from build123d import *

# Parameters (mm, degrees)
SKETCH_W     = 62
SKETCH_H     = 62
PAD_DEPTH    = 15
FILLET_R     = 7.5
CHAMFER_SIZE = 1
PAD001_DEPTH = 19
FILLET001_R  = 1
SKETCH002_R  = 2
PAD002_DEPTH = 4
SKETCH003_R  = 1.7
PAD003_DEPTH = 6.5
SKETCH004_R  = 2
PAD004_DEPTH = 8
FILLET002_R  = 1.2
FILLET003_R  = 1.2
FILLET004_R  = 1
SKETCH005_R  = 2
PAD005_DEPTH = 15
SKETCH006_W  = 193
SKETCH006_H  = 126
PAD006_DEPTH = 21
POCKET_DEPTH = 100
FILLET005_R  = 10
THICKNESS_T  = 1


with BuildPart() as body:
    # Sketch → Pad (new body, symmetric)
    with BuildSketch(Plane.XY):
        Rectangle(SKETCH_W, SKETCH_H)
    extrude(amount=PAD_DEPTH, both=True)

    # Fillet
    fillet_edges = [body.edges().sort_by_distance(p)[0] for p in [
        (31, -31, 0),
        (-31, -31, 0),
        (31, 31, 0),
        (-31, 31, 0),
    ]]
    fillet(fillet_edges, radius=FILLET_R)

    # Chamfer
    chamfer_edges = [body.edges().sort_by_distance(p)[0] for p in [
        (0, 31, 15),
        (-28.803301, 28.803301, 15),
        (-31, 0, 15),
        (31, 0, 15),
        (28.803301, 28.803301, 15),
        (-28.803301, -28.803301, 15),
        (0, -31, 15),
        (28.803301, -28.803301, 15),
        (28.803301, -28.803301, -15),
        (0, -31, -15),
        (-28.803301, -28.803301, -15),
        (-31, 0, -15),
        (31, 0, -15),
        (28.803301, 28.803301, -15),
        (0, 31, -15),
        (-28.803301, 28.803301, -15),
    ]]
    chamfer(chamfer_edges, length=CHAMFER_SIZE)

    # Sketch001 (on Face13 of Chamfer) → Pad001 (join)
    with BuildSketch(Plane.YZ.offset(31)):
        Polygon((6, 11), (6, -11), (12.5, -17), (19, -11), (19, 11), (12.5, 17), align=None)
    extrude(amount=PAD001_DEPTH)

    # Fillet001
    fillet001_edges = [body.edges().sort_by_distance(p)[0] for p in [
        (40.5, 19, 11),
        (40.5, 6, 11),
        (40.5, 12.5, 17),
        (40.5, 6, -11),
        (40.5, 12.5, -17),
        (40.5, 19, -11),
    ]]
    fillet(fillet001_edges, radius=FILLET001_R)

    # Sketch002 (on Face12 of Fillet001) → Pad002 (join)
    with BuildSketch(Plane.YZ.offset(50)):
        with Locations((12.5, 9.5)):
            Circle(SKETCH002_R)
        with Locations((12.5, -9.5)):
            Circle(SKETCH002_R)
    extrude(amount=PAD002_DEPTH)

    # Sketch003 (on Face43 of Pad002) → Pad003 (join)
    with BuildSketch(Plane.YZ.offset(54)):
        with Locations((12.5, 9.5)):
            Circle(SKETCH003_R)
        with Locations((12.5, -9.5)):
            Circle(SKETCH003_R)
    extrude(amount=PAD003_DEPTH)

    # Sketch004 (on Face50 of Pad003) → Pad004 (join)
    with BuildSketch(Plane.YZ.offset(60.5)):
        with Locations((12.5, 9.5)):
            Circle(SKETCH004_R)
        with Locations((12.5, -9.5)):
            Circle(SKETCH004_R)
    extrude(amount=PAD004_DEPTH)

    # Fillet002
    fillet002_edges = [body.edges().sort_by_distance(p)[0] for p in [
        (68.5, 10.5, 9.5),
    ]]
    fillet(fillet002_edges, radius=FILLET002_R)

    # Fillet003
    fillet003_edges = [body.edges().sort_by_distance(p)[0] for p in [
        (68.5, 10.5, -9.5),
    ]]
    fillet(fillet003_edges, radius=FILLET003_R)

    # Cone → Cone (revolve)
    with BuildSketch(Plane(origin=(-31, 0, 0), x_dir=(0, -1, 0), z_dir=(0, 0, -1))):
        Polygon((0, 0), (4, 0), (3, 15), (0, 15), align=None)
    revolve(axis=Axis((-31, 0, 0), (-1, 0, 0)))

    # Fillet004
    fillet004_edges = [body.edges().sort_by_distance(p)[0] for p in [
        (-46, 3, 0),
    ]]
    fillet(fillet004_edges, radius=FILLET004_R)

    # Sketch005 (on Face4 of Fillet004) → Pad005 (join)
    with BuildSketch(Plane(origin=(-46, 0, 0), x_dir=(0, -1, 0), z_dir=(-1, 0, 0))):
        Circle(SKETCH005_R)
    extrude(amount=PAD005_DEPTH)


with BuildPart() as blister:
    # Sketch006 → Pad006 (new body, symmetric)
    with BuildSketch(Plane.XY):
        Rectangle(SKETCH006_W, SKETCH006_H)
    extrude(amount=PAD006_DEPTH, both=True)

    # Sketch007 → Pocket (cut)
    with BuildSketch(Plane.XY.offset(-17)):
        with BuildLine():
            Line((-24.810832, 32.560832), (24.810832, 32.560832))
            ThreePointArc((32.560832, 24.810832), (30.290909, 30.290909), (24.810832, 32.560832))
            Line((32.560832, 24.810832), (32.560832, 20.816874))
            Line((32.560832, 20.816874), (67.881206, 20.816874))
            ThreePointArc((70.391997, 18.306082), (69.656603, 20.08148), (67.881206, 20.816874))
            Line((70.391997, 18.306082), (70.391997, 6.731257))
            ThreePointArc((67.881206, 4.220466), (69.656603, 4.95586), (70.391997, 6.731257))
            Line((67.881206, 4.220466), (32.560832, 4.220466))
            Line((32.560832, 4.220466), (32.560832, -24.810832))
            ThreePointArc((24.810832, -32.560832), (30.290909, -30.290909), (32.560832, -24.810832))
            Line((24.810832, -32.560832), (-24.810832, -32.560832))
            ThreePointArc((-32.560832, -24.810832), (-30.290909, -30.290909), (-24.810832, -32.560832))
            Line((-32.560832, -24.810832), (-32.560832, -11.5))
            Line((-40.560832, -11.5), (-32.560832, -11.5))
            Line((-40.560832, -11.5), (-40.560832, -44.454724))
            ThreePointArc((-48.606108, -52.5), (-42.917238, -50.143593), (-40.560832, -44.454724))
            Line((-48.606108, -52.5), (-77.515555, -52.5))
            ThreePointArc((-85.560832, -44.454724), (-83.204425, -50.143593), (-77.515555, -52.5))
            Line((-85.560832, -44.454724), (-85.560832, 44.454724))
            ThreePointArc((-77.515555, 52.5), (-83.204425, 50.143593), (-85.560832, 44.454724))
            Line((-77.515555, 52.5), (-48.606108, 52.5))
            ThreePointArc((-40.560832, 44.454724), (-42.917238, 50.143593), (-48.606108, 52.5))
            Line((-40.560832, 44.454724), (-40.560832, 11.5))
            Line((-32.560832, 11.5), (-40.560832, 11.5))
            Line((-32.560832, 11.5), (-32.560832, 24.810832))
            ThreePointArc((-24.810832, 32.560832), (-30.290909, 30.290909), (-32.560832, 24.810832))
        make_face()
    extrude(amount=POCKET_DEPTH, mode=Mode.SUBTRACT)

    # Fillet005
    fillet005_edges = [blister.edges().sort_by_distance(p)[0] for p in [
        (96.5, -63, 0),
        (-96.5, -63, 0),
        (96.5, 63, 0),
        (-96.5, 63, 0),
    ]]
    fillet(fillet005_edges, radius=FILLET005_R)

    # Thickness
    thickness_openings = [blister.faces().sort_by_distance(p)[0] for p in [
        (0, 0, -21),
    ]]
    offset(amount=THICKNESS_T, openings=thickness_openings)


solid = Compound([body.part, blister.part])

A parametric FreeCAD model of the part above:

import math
import FreeCAD as App
import Part
import Sketcher
from FreeCAD import Vector
Q = App.Units.Quantity


def edges_at(feature, points):
    """Names of the edges that pass closest to the given points."""
    edges = feature.Shape.Edges
    near = lambda p: min(range(len(edges)), key=lambda i: edges[i].distToShape(Part.Vertex(*p))[0])
    return sorted({f"Edge{near(p) + 1}" for p in points})


def faces_at(feature, points):
    """Names of the faces that lie closest to the given points."""
    faces = feature.Shape.Faces
    near = lambda p: min(range(len(faces)), key=lambda i: faces[i].distToShape(Part.Vertex(*p))[0])
    return sorted({f"Face{near(p) + 1}" for p in points})

doc = App.newDocument("Part")
params = doc.addObject("Spreadsheet::Sheet", "Params")
for row, (alias, value) in enumerate([
    ("sketch1_width", "62 mm"),
    ("pad1_length", "30 mm"),
    ("fillet_radius", "7.5 mm"),
    ("chamfer_size", "1 mm"),
    ("sketch2_height", "22 mm"),
    ("pad2_length", "19 mm"),
    ("fillet2_radius", "1 mm"),
    ("sketch3_diameter", "4 mm"),
    ("pad3_length", "4 mm"),
    ("sketch4_diameter", "3.4 mm"),
    ("pad4_length", "6.5 mm"),
    ("sketch5_diameter", "4 mm"),
    ("pad5_length", "8 mm"),
    ("fillet3_radius", "1.2 mm"),
    ("fillet4_radius", "1.2 mm"),
    ("sketch6_width", "15 mm"),
    ("sketch6_height", "4 mm"),
    ("sketch6_height2", "3 mm"),
    ("revolution_angle", "360 deg"),
    ("fillet5_radius", "1 mm"),
    ("sketch7_diameter", "4 mm"),
    ("pad6_length", "15 mm"),
    ("sketch8_width", "193 mm"),
    ("sketch8_height", "126 mm"),
    ("pad7_length", "42 mm"),
    ("sketch9_width", "8 mm"),
    ("sketch9_radius", "7.750002 mm"),
    ("pocket1_length", "100 mm"),
    ("fillet6_radius", "10 mm"),
    ("thickness_wall", "1 mm"),
], start=1):
    params.set(f"A{row}", alias)
    params.set(f"B{row}", "=" + value)
    params.setAlias(f"B{row}", alias)

body = doc.addObject("PartDesign::Body", "Body")

sketch1 = body.newObject("Sketcher::SketchObject", "Sketch")
sketch1.AttachmentSupport = (doc.getObject("XY_Plane"), [""])
sketch1.MapMode = "FlatFace"
sketch1.addGeometry([
    Part.LineSegment(Vector(-31, 31, 0), Vector(-31, -31, 0)),
    Part.LineSegment(Vector(-31, -31, 0), Vector(31, -31, 0)),
    Part.LineSegment(Vector(31, -31, 0), Vector(31, 31, 0)),
    Part.LineSegment(Vector(31, 31, 0), Vector(-31, 31, 0)),
], False)
sketch1.addConstraint([
    Sketcher.Constraint("Coincident", 0, 2, 1, 1),
    Sketcher.Constraint("Coincident", 1, 2, 2, 1),
    Sketcher.Constraint("Coincident", 2, 2, 3, 1),
    Sketcher.Constraint("Coincident", 3, 2, 0, 1),
    Sketcher.Constraint("Vertical", 0),
    Sketcher.Constraint("Horizontal", 1),
    Sketcher.Constraint("Vertical", 2),
    Sketcher.Constraint("Horizontal", 3),
    Sketcher.Constraint("Symmetric", 0, 2, 2, 2, -1, 1),
    Sketcher.Constraint("Equal", 3, 0),
    Sketcher.Constraint("DistanceX", 1, 1, 1, 2, Q("62 mm")),
])
sketch1.setExpression("Constraints[10]", "Params.sketch1_width")
pad1 = body.newObject("PartDesign::Pad", "Pad")
pad1.Profile = sketch1
pad1.setExpression("Length", "Params.pad1_length")
pad1.Midplane = True
doc.recompute()

fillet = body.newObject("PartDesign::Fillet", "Fillet")
fillet.Base = (pad1, edges_at(pad1, [
    (31, -31, 0),
    (-31, -31, 0),
    (31, 31, 0),
    (-31, 31, 0),
]))
fillet.setExpression("Radius", "Params.fillet_radius")
doc.recompute()

chamfer = body.newObject("PartDesign::Chamfer", "Chamfer")
chamfer.Base = (fillet, edges_at(fillet, [
    (0, 31, 15),
    (-28.803, 28.803, 15),
    (-31, 0, 15),
    (31, 0, 15),
    (28.803, 28.803, 15),
    (-28.803, -28.803, 15),
    (0, -31, 15),
    (28.803, -28.803, 15),
    (28.803, -28.803, -15),
    (0, -31, -15),
    (-28.803, -28.803, -15),
    (-31, 0, -15),
    (31, 0, -15),
    (28.803, 28.803, -15),
    (0, 31, -15),
    (-28.803, 28.803, -15),
]))
chamfer.setExpression("Size", "Params.chamfer_size")

sketch2 = body.newObject("Sketcher::SketchObject", "Sketch001")
sketch2.AttachmentSupport = (doc.getObject("YZ_Plane"), [""])
sketch2.MapMode = "FlatFace"
sketch2.AttachmentOffset = App.Placement(Vector(0, 0, 31), App.Rotation())
sketch2.addGeometry([
    Part.LineSegment(Vector(6, 11, 0), Vector(6, -11, 0)),
    Part.LineSegment(Vector(6, -11, 0), Vector(12, -17, 0)),
    Part.LineSegment(Vector(12, -17, 0), Vector(19, -11, 0)),
    Part.LineSegment(Vector(19, -11, 0), Vector(19, 11, 0)),
    Part.LineSegment(Vector(19, 11, 0), Vector(12, 17, 0)),
    Part.LineSegment(Vector(12, 17, 0), Vector(6, 11, 0)),
], False)
sketch2.addConstraint([
    Sketcher.Constraint("Coincident", 0, 2, 1, 1),
    Sketcher.Constraint("Coincident", 1, 2, 2, 1),
    Sketcher.Constraint("Coincident", 2, 2, 3, 1),
    Sketcher.Constraint("Coincident", 3, 2, 4, 1),
    Sketcher.Constraint("Coincident", 4, 2, 5, 1),
    Sketcher.Constraint("Coincident", 5, 2, 0, 1),
    Sketcher.Constraint("Vertical", 0),
    Sketcher.Constraint("Vertical", 3),
    Sketcher.Constraint("Symmetric", 1, 2, 4, 2, -1),
    Sketcher.Constraint("Parallel", 1, 4),
    Sketcher.Constraint("Parallel", 2, 5),
    Sketcher.Constraint("Horizontal", 0, 2, 2, 2),
    Sketcher.Constraint("Horizontal", 3, 2, 5, 2),
    Sketcher.Constraint("DistanceY", 0, 2, 0, 1, Q("22 mm")),
    Sketcher.Constraint("DistanceX", -1, 1, 0, 2, Q("6 mm")),
    Sketcher.Constraint("DistanceY", 1, 2, -1, 1, Q("17 mm")),
    Sketcher.Constraint("DistanceX", -1, 1, 2, 2, Q("19 mm")),
])
sketch2.setExpression("Constraints[13]", "Params.sketch2_height")
pad2 = body.newObject("PartDesign::Pad", "Pad001")
pad2.Profile = sketch2
pad2.setExpression("Length", "Params.pad2_length")
doc.recompute()

fillet2 = body.newObject("PartDesign::Fillet", "Fillet001")
fillet2.Base = (pad2, edges_at(pad2, [
    (40.5, 19, 11),
    (40.5, 6, 11),
    (40.5, 12.5, 17),
    (40.5, 6, -11),
    (40.5, 12.5, -17),
    (40.5, 19, -11),
]))
fillet2.setExpression("Radius", "Params.fillet2_radius")

sketch3 = body.newObject("Sketcher::SketchObject", "Sketch002")
sketch3.AttachmentSupport = (doc.getObject("YZ_Plane"), [""])
sketch3.MapMode = "FlatFace"
sketch3.AttachmentOffset = App.Placement(Vector(0, 0, 50), App.Rotation())
sketch3.addGeometry([
    Part.Circle(Vector(12.5, 9.5, 0), Vector(0, 0, 1), 2),
    Part.Circle(Vector(12.5, -9.5, 0), Vector(0, 0, 1), 2),
], False)
sketch3.addConstraint([
    Sketcher.Constraint("Equal", 0, 1),
    Sketcher.Constraint("Symmetric", 0, 3, 1, 3, -1),
    Sketcher.Constraint("Diameter", 0, Q("4 mm")),
    Sketcher.Constraint("DistanceY", 1, 3, 0, 3, Q("19 mm")),
    Sketcher.Constraint("DistanceX", -1, 1, 0, 3, Q("12.5 mm")),
])
sketch3.setExpression("Constraints[2]", "Params.sketch3_diameter")
pad3 = body.newObject("PartDesign::Pad", "Pad002")
pad3.Profile = sketch3
pad3.setExpression("Length", "Params.pad3_length")

sketch4 = body.newObject("Sketcher::SketchObject", "Sketch003")
sketch4.AttachmentSupport = (doc.getObject("YZ_Plane"), [""])
sketch4.MapMode = "FlatFace"
sketch4.AttachmentOffset = App.Placement(Vector(0, 0, 54), App.Rotation())
sketch4.addGeometry([
    Part.Circle(Vector(12.5, 9.5, 0), Vector(0, 0, 1), 1.7),
    Part.Circle(Vector(12.5, -9.5, 0), Vector(0, 0, 1), 1.7),
], False)
sketch4.addConstraint([
    Sketcher.Constraint("Equal", 0, 1),
    Sketcher.Constraint("Symmetric", 0, 3, 1, 3, -1),
    Sketcher.Constraint("Diameter", 0, Q("3.4 mm")),
    Sketcher.Constraint("DistanceY", 1, 3, 0, 3, Q("19 mm")),
    Sketcher.Constraint("DistanceX", -1, 1, 0, 3, Q("12.5 mm")),
])
sketch4.setExpression("Constraints[2]", "Params.sketch4_diameter")
pad4 = body.newObject("PartDesign::Pad", "Pad003")
pad4.Profile = sketch4
pad4.setExpression("Length", "Params.pad4_length")

sketch5 = body.newObject("Sketcher::SketchObject", "Sketch004")
sketch5.AttachmentSupport = (doc.getObject("YZ_Plane"), [""])
sketch5.MapMode = "FlatFace"
sketch5.AttachmentOffset = App.Placement(Vector(0, 0, 60.5), App.Rotation())
sketch5.addGeometry([
    Part.Circle(Vector(12.5, 9.5, 0), Vector(0, 0, 1), 2),
    Part.Circle(Vector(12.5, -9.5, 0), Vector(0, 0, 1), 2),
], False)
sketch5.addConstraint([
    Sketcher.Constraint("Equal", 0, 1),
    Sketcher.Constraint("Symmetric", 0, 3, 1, 3, -1),
    Sketcher.Constraint("Diameter", 0, Q("4 mm")),
    Sketcher.Constraint("DistanceY", 1, 3, 0, 3, Q("19 mm")),
    Sketcher.Constraint("DistanceX", -1, 1, 0, 3, Q("12.5 mm")),
])
sketch5.setExpression("Constraints[2]", "Params.sketch5_diameter")
pad5 = body.newObject("PartDesign::Pad", "Pad004")
pad5.Profile = sketch5
pad5.setExpression("Length", "Params.pad5_length")
doc.recompute()

fillet3 = body.newObject("PartDesign::Fillet", "Fillet002")
fillet3.Base = (pad5, edges_at(pad5, [(68.5, 10.5, 9.5)]))
fillet3.setExpression("Radius", "Params.fillet3_radius")
doc.recompute()

fillet4 = body.newObject("PartDesign::Fillet", "Fillet003")
fillet4.Base = (fillet3, edges_at(fillet3, [(68.5, 10.5, -9.5)]))
fillet4.setExpression("Radius", "Params.fillet4_radius")

sketch6 = body.newObject("Sketcher::SketchObject", "Sketch005")
sketch6.AttachmentSupport = (doc.getObject("XY_Plane"), [""])
sketch6.MapMode = "FlatFace"
sketch6.addGeometry([
    Part.LineSegment(Vector(-31, 0, 0), Vector(-31, -4, 0)),
    Part.LineSegment(Vector(-31, -4, 0), Vector(-46, -3, 0)),
    Part.LineSegment(Vector(-46, -3, 0), Vector(-46, 0, 0)),
    Part.LineSegment(Vector(-46, 0, 0), Vector(-31, 0, 0)),
], False)
sketch6.addConstraint([
    Sketcher.Constraint("Coincident", 0, 2, 1, 1),
    Sketcher.Constraint("Coincident", 1, 2, 2, 1),
    Sketcher.Constraint("Coincident", 2, 2, 3, 1),
    Sketcher.Constraint("Coincident", 3, 2, 0, 1),
    Sketcher.Constraint("Vertical", 0),
    Sketcher.Constraint("Vertical", 2),
    Sketcher.Constraint("Horizontal", 3),
    Sketcher.Constraint("PointOnObject", 2, 2, -1),
    Sketcher.Constraint("DistanceX", 3, 1, 3, 2, Q("15 mm")),
    Sketcher.Constraint("DistanceY", 0, 2, 0, 1, Q("4 mm")),
    Sketcher.Constraint("DistanceY", 2, 1, 2, 2, Q("3 mm")),
    Sketcher.Constraint("DistanceX", 0, 2, -1, 1, Q("31 mm")),
])
sketch6.setExpression("Constraints[8]", "Params.sketch6_width")
sketch6.setExpression("Constraints[9]", "Params.sketch6_height")
sketch6.setExpression("Constraints[10]", "Params.sketch6_height2")
revolution = body.newObject("PartDesign::Revolution", "Revolution")
revolution.Profile = sketch6
revolution.ReferenceAxis = (sketch6, ["H_Axis"])
revolution.setExpression("Angle", "Params.revolution_angle")
doc.recompute()

fillet5 = body.newObject("PartDesign::Fillet", "Fillet004")
fillet5.Base = (revolution, edges_at(revolution, [(-46, 3, 0)]))
fillet5.setExpression("Radius", "Params.fillet5_radius")

sketch7 = body.newObject("Sketcher::SketchObject", "Sketch006")
sketch7.AttachmentSupport = (doc.getObject("YZ_Plane"), [""])
sketch7.MapMode = "FlatFace"
sketch7.AttachmentOffset = App.Placement(Vector(0, 0, -46), App.Rotation())
sketch7.addGeometry(Part.Circle(Vector(0, 0, 0), Vector(0, 0, 1), 2), False)
sketch7.addConstraint([
    Sketcher.Constraint("Coincident", 0, 3, -1, 1),
    Sketcher.Constraint("Diameter", 0, Q("4 mm")),
])
sketch7.setExpression("Constraints[1]", "Params.sketch7_diameter")
pad6 = body.newObject("PartDesign::Pad", "Pad005")
pad6.Profile = sketch7
pad6.setExpression("Length", "Params.pad6_length")
pad6.Reversed = True
body2 = doc.addObject("PartDesign::Body", "Body001")

sketch8 = body2.newObject("Sketcher::SketchObject", "Sketch007")
sketch8.AttachmentSupport = (doc.getObject("XY_Plane001"), [""])
sketch8.MapMode = "FlatFace"
sketch8.addGeometry([
    Part.LineSegment(Vector(-96, 63, 0), Vector(-96, -63, 0)),
    Part.LineSegment(Vector(-96, -63, 0), Vector(96, -63, 0)),
    Part.LineSegment(Vector(96, -63, 0), Vector(96, 63, 0)),
    Part.LineSegment(Vector(96, 63, 0), Vector(-96, 63, 0)),
], False)
sketch8.addConstraint([
    Sketcher.Constraint("Coincident", 0, 2, 1, 1),
    Sketcher.Constraint("Coincident", 1, 2, 2, 1),
    Sketcher.Constraint("Coincident", 2, 2, 3, 1),
    Sketcher.Constraint("Coincident", 3, 2, 0, 1),
    Sketcher.Constraint("Vertical", 0),
    Sketcher.Constraint("Horizontal", 1),
    Sketcher.Constraint("Vertical", 2),
    Sketcher.Constraint("Horizontal", 3),
    Sketcher.Constraint("Symmetric", 0, 2, 2, 2, -1, 1),
    Sketcher.Constraint("DistanceX", 1, 1, 1, 2, Q("193 mm")),
    Sketcher.Constraint("DistanceY", 0, 2, 0, 1, Q("126 mm")),
])
sketch8.setExpression("Constraints[9]", "Params.sketch8_width")
sketch8.setExpression("Constraints[10]", "Params.sketch8_height")
pad7 = body2.newObject("PartDesign::Pad", "Pad006")
pad7.Profile = sketch8
pad7.setExpression("Length", "Params.pad7_length")
pad7.Midplane = True

sketch9 = body2.newObject("Sketcher::SketchObject", "Sketch008")
sketch9.AttachmentSupport = (doc.getObject("XY_Plane001"), [""])
sketch9.MapMode = "FlatFace"
sketch9.AttachmentOffset = App.Placement(Vector(0, 0, -17), App.Rotation())
sketch9.addGeometry([
    Part.LineSegment(Vector(24.8, 32.6, 0), Vector(-24.8, 32.6, 0)),
    Part.ArcOfCircle(Part.Circle(Vector(-24.8, 24.8, 0), Vector(0, 0, 1), 7.8), math.radians(90), math.radians(180)),
    Part.LineSegment(Vector(-32.6, 24.8, 0), Vector(-32.6, 11.5, 0)),
    Part.LineSegment(Vector(-32.6, 11.5, 0), Vector(-40.6, 11.5, 0)),
    Part.LineSegment(Vector(-40.6, 11.5, 0), Vector(-40.6, 44.5, 0)),
    Part.ArcOfCircle(Part.Circle(Vector(-48.6, 44.5, 0), Vector(0, 0, 1), 8), math.radians(0), math.radians(90)),
    Part.LineSegment(Vector(-48.6, 52.5, 0), Vector(-77.5, 52.5, 0)),
    Part.ArcOfCircle(Part.Circle(Vector(-77.5, 44.5, 0), Vector(0, 0, 1), 8), math.radians(90), math.radians(180)),
    Part.LineSegment(Vector(-85.6, 44.5, 0), Vector(-85.6, -44.5, 0)),
    Part.ArcOfCircle(Part.Circle(Vector(-77.5, -44.5, 0), Vector(0, 0, 1), 8), math.radians(-180), math.radians(-90)),
    Part.LineSegment(Vector(-77.5, -52.5, 0), Vector(-48.6, -52.5, 0)),
    Part.ArcOfCircle(Part.Circle(Vector(-48.6, -44.5, 0), Vector(0, 0, 1), 8), math.radians(-90), math.radians(0)),
    Part.LineSegment(Vector(-40.6, -44.5, 0), Vector(-40.6, -11.5, 0)),
    Part.LineSegment(Vector(-40.6, -11.5, 0), Vector(-32.6, -11.5, 0)),
    Part.LineSegment(Vector(-32.6, -11.5, 0), Vector(-32.6, -24.8, 0)),
    Part.ArcOfCircle(Part.Circle(Vector(-24.8, -24.8, 0), Vector(0, 0, 1), 7.8), math.radians(-180), math.radians(-90)),
    Part.LineSegment(Vector(-24.8, -32.6, 0), Vector(24.8, -32.6, 0)),
    Part.ArcOfCircle(Part.Circle(Vector(24.8, -24.8, 0), Vector(0, 0, 1), 7.8), math.radians(-90), math.radians(0)),
    Part.LineSegment(Vector(32.6, -24.8, 0), Vector(32.6, 4.2, 0)),
    Part.LineSegment(Vector(32.6, 4.2, 0), Vector(67.9, 4.2, 0)),
    Part.ArcOfCircle(Part.Circle(Vector(67.9, 6.7, 0), Vector(0, 0, 1), 2.5), math.radians(-90), math.radians(0)),
    Part.LineSegment(Vector(70.4, 6.7, 0), Vector(70.4, 18.3, 0)),
    Part.ArcOfCircle(Part.Circle(Vector(67.9, 18.3, 0), Vector(0, 0, 1), 2.5), math.radians(0), math.radians(90)),
    Part.LineSegment(Vector(67.9, 20.8, 0), Vector(32.6, 20.8, 0)),
    Part.LineSegment(Vector(32.6, 20.8, 0), Vector(32.6, 24.8, 0)),
    Part.ArcOfCircle(Part.Circle(Vector(24.8, 24.8, 0), Vector(0, 0, 1), 7.8), math.radians(0), math.radians(90)),
], False)
sketch9.addConstraint([
    Sketcher.Constraint("Tangent", 0, 2, 1, 1),
    Sketcher.Constraint("Tangent", 1, 2, 2, 1),
    Sketcher.Constraint("Coincident", 2, 2, 3, 1),
    Sketcher.Constraint("Coincident", 3, 2, 4, 1),
    Sketcher.Constraint("Tangent", 4, 2, 5, 1),
    Sketcher.Constraint("Tangent", 5, 2, 6, 1),
    Sketcher.Constraint("Tangent", 6, 2, 7, 1),
    Sketcher.Constraint("Tangent", 7, 2, 8, 1),
    Sketcher.Constraint("Tangent", 8, 2, 9, 1),
    Sketcher.Constraint("Tangent", 9, 2, 10, 1),
    Sketcher.Constraint("Tangent", 10, 2, 11, 1),
    Sketcher.Constraint("Tangent", 11, 2, 12, 1),
    Sketcher.Constraint("Coincident", 12, 2, 13, 1),
    Sketcher.Constraint("Coincident", 13, 2, 14, 1),
    Sketcher.Constraint("Tangent", 14, 2, 15, 1),
    Sketcher.Constraint("Tangent", 15, 2, 16, 1),
    Sketcher.Constraint("Tangent", 16, 2, 17, 1),
    Sketcher.Constraint("Tangent", 17, 2, 18, 1),
    Sketcher.Constraint("Coincident", 18, 2, 19, 1),
    Sketcher.Constraint("Tangent", 19, 2, 20, 1),
    Sketcher.Constraint("Tangent", 20, 2, 21, 1),
    Sketcher.Constraint("Tangent", 21, 2, 22, 1),
    Sketcher.Constraint("Tangent", 22, 2, 23, 1),
    Sketcher.Constraint("Coincident", 23, 2, 24, 1),
    Sketcher.Constraint("Tangent", 24, 2, 25, 1),
    Sketcher.Constraint("Tangent", 25, 2, 0, 1),
    Sketcher.Constraint("Horizontal", 0),
    Sketcher.Constraint("Vertical", 2),
    Sketcher.Constraint("Horizontal", 3),
    Sketcher.Constraint("Vertical", 4),
    Sketcher.Constraint("Horizontal", 6),
    Sketcher.Constraint("Vertical", 8),
    Sketcher.Constraint("Horizontal", 10),
    Sketcher.Constraint("Vertical", 12),
    Sketcher.Constraint("Horizontal", 13),
    Sketcher.Constraint("Vertical", 14),
    Sketcher.Constraint("Horizontal", 16),
    Sketcher.Constraint("Vertical", 18),
    Sketcher.Constraint("Horizontal", 19),
    Sketcher.Constraint("Vertical", 21),
    Sketcher.Constraint("Horizontal", 23),
    Sketcher.Constraint("Vertical", 24),
    Sketcher.Constraint("Equal", 5, 7),
    Sketcher.Constraint("Equal", 7, 9),
    Sketcher.Constraint("Equal", 9, 11),
    Sketcher.Constraint("Equal", 1, 15),
    Sketcher.Constraint("Equal", 15, 17),
    Sketcher.Constraint("Equal", 20, 22),
    Sketcher.Constraint("Equal", 17, 25),
    Sketcher.Constraint("Symmetric", 1, 3, 17, 3, -1, 1),
    Sketcher.Constraint("Symmetric", 5, 3, 11, 3, -1),
    Sketcher.Constraint("Symmetric", 2, 2, 13, 2, -1),
    Sketcher.Constraint("Vertical", 17, 3, 25, 3),
    Sketcher.Constraint("DistanceX", 3, 2, 3, 1, Q("8 mm")),
    Sketcher.Constraint("Radius", 1, Q("7.750002 mm")),
    Sketcher.Constraint("DistanceX", 7, 2, 4, 2, Q("45 mm")),
    Sketcher.Constraint("DistanceY", 9, 2, 3, 2, Q("64 mm")),
    Sketcher.Constraint("DistanceY", 12, 2, 3, 2, Q("23 mm")),
    Sketcher.Constraint("Radius", 5, Q("8.045275 mm")),
    Sketcher.Constraint("Radius", 20, Q("2.510792 mm")),
    Sketcher.Constraint("DistanceY", 24, 1, 24, 2, Q("3.993958 mm")),
    Sketcher.Constraint("DistanceX", 0, 2, 0, 1, Q("49.621664 mm")),
    Sketcher.Constraint("DistanceX", 19, 1, 19, 2, Q("35.320374 mm")),
    Sketcher.Constraint("DistanceY", 2, 2, 2, 1, Q("13.310832 mm")),
    Sketcher.Constraint("DistanceY", 18, 1, 18, 2, Q("29.031298 mm")),
])
sketch9.setExpression("Constraints[53]", "Params.sketch9_width")
sketch9.setExpression("Constraints[54]", "Params.sketch9_radius")
pocket1 = body2.newObject("PartDesign::Pocket", "Pocket")
pocket1.Profile = sketch9
pocket1.setExpression("Length", "Params.pocket1_length")
pocket1.Reversed = True
doc.recompute()

fillet6 = body2.newObject("PartDesign::Fillet", "Fillet005")
fillet6.Base = (pocket1, edges_at(pocket1, [
    (96.5, -63, 0),
    (-96.5, -63, 0),
    (96.5, 63, 0),
    (-96.5, 63, 0),
]))
fillet6.setExpression("Radius", "Params.fillet6_radius")
doc.recompute()

thickness = body2.newObject("PartDesign::Thickness", "Thickness")
thickness.Base = (fillet6, faces_at(fillet6, [(0, 0, -21)]))
thickness.setExpression("Value", "Params.thickness_wall")
thickness.Reversed = False
thickness.Join = "Arc"

doc.recompute()
